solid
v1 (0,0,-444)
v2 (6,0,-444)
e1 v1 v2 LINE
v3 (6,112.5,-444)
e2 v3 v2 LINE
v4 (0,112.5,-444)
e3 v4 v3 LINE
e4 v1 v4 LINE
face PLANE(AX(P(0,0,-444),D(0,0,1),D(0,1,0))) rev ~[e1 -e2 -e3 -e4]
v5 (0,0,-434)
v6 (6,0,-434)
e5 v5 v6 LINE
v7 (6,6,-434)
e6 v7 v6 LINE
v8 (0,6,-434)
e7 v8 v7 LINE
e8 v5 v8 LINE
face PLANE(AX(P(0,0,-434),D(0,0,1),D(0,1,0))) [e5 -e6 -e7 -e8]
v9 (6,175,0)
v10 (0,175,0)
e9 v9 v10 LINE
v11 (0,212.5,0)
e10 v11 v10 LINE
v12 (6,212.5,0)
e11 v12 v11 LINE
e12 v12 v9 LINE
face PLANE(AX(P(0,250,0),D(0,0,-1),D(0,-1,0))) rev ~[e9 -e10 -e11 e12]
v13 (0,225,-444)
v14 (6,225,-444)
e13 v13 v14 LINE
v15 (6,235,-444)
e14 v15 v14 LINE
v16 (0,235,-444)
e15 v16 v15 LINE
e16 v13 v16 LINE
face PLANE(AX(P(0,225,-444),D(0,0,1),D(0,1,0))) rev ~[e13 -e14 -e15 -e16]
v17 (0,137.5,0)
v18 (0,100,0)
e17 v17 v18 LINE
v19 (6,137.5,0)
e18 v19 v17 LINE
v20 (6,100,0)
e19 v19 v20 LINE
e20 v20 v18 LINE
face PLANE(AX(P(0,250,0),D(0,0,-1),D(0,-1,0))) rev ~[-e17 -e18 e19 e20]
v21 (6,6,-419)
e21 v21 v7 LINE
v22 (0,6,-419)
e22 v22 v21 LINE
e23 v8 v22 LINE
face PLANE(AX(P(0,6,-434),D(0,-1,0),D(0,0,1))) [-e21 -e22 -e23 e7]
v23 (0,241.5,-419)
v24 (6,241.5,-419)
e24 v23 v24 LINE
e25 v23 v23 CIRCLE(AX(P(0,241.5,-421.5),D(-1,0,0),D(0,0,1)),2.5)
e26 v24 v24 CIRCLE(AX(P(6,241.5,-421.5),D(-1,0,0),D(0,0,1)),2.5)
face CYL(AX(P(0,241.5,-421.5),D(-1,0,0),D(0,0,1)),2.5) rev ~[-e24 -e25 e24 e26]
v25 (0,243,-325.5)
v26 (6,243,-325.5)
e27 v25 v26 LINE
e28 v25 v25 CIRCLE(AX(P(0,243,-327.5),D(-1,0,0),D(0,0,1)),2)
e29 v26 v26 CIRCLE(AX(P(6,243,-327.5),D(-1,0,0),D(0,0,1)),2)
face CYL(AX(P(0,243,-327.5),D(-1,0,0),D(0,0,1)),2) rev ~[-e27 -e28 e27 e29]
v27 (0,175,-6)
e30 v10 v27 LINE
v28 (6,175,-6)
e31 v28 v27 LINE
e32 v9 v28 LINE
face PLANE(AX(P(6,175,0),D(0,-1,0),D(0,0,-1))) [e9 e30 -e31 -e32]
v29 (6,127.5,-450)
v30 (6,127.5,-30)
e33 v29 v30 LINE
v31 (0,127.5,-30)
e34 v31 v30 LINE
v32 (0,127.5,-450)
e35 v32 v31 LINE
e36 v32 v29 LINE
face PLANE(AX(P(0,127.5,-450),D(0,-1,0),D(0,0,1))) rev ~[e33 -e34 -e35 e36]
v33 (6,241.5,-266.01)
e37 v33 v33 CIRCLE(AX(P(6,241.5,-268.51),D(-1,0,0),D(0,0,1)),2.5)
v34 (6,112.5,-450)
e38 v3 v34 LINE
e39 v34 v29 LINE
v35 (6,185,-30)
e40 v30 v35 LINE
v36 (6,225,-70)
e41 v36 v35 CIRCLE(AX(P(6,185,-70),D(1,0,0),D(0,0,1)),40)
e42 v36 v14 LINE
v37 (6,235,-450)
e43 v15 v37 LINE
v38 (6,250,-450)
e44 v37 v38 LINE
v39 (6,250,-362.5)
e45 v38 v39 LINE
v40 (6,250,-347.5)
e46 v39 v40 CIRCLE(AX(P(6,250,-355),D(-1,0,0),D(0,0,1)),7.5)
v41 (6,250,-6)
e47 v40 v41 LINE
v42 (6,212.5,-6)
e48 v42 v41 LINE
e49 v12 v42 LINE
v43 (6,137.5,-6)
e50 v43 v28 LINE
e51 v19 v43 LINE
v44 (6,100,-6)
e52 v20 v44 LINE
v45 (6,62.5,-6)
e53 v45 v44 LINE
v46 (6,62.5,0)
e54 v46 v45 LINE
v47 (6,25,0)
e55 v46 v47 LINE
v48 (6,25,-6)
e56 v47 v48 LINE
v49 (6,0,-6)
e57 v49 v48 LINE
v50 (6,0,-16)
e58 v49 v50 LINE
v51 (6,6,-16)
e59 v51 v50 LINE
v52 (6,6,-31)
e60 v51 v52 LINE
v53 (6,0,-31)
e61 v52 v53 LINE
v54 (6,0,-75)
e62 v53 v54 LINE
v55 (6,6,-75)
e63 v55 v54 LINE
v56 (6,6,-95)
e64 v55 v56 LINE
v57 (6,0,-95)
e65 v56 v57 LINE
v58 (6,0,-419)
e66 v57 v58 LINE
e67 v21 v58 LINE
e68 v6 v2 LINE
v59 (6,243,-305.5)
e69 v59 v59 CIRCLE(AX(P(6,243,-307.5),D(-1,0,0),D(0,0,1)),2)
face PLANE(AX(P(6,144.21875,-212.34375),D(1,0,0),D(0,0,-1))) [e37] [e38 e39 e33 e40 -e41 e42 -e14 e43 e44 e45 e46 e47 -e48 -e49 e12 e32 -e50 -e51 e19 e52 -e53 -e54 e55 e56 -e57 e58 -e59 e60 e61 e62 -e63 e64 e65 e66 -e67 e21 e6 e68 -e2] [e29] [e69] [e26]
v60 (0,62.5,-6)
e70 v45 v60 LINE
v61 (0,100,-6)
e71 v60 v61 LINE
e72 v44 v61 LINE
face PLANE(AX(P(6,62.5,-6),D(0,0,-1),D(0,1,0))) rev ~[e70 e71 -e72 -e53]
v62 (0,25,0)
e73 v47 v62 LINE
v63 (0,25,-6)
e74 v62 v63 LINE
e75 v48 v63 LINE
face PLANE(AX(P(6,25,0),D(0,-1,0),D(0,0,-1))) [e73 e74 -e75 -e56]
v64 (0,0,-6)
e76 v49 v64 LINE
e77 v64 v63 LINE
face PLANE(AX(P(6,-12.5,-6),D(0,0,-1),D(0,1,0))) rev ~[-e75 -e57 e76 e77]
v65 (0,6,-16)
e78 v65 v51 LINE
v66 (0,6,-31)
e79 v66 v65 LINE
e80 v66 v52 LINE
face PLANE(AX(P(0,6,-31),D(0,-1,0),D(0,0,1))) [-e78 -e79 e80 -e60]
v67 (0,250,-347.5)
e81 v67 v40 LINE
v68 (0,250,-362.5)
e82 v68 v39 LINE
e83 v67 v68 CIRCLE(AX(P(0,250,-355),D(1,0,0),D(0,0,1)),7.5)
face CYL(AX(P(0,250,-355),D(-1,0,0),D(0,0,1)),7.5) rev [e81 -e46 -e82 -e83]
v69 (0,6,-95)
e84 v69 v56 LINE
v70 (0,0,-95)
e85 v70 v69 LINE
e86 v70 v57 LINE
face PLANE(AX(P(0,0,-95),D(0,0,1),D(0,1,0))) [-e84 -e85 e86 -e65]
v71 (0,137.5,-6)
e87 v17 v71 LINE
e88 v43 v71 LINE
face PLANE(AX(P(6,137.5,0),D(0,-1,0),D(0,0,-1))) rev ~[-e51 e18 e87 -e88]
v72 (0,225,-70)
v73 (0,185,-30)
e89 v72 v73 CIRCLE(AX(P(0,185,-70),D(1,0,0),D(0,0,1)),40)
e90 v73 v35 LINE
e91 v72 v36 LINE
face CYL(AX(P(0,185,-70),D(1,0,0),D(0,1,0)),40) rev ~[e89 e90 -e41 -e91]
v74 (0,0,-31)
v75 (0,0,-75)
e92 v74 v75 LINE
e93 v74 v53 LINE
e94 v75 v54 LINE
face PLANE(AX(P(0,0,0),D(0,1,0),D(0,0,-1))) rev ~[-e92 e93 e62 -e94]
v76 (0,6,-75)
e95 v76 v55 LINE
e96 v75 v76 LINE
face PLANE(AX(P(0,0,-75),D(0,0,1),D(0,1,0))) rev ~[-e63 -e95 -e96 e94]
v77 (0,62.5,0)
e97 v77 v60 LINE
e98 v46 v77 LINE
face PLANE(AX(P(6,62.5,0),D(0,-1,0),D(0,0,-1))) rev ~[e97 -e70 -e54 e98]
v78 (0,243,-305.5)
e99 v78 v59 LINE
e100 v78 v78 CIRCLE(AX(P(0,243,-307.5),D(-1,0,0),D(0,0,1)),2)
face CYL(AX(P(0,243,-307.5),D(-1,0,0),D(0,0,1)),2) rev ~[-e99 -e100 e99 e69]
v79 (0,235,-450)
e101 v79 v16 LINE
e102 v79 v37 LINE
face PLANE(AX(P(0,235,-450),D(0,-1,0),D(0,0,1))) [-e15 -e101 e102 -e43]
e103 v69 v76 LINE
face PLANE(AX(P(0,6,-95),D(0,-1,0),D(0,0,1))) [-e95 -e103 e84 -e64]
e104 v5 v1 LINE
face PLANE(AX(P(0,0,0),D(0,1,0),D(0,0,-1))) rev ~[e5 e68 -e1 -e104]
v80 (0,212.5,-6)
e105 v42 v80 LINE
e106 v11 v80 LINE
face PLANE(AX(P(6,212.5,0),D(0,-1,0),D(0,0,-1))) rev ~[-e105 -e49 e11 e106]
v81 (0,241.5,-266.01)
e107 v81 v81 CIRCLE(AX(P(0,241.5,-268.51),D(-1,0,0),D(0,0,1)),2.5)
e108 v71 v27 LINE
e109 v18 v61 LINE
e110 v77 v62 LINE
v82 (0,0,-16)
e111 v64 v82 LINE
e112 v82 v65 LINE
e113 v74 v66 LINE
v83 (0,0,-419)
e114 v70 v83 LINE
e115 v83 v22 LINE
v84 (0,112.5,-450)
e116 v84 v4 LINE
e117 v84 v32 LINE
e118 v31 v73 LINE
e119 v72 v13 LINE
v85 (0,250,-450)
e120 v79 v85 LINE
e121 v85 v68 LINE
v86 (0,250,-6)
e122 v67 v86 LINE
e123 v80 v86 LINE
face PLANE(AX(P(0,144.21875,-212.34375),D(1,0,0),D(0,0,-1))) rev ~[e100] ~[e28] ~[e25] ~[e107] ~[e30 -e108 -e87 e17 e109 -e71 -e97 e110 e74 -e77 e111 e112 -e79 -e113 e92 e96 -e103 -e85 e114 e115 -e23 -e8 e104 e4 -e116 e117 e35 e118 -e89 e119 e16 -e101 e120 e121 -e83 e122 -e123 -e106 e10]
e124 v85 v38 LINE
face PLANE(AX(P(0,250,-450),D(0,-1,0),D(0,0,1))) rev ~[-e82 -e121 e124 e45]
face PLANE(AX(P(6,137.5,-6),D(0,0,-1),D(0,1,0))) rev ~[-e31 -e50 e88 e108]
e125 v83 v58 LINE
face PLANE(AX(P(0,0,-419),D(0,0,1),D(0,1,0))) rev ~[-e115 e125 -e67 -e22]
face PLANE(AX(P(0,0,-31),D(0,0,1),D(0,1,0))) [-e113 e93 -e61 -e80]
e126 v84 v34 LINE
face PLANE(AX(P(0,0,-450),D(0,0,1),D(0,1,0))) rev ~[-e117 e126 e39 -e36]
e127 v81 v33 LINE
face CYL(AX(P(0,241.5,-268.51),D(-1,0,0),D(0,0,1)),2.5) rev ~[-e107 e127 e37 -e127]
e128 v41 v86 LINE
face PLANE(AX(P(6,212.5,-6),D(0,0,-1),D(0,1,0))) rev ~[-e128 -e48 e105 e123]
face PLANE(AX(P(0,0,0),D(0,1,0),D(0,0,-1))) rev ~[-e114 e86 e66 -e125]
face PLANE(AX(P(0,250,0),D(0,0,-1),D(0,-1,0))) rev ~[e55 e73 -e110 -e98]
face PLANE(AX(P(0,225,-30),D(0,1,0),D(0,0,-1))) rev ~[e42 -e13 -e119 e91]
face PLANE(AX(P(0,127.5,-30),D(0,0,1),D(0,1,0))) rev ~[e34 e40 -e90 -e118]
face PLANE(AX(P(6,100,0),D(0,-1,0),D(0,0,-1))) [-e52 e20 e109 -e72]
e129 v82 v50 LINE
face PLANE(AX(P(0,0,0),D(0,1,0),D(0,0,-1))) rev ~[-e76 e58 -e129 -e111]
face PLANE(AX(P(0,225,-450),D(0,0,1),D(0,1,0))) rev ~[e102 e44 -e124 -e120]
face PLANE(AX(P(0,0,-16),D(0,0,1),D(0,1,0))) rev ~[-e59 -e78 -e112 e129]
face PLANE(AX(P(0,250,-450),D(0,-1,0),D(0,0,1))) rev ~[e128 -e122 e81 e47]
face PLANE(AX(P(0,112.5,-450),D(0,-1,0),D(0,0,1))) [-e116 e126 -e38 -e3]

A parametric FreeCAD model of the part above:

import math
import FreeCAD as App
import Part
import Sketcher


def edges_at(feature, points):
    """Names of the edges that pass closest to the given points."""
    edges = feature.Shape.Edges
    near = lambda p: min(range(len(edges)), key=lambda i: edges[i].distToShape(Part.Vertex(*p))[0])
    return sorted({f"Edge{near(p) + 1}" for p in points})


def add_polygon(sketch, points):
    """Adds a closed chain of lines whose ends are joined by coincident constraints."""
    first, n = sketch.GeometryCount, len(points)
    for a, b in zip(points, points[1:] + points[:1]):
        sketch.addGeometry(Part.LineSegment(App.Vector(*a, 0), App.Vector(*b, 0)), False)
    for i in range(n):
        sketch.addConstraint(Sketcher.Constraint("Coincident", first + i, 2, first + (i + 1) % n, 1))

doc = App.newDocument("Part")
body = doc.addObject("PartDesign::Body", "Body")

# Sketch on YZ plane
sketch1 = body.newObject("Sketcher::SketchObject", "Sketch")
sketch1.AttachmentSupport = (doc.getObject("YZ_Plane"), [""])
sketch1.MapMode = "FlatFace"
add_polygon(sketch1, [(225, -450), (250, -450), (250, 0), (0, 0), (0, -450), (127.5, -450), (127.5, -30), (225, -30)])  # lines 0-7
sketch1.addConstraint(Sketcher.Constraint("Horizontal", 0))
sketch1.addConstraint(Sketcher.Constraint("Vertical", 1))
sketch1.addConstraint(Sketcher.Constraint("Horizontal", 2))
sketch1.addConstraint(Sketcher.Constraint("Vertical", 3))
sketch1.addConstraint(Sketcher.Constraint("Horizontal", 4))
sketch1.addConstraint(Sketcher.Constraint("Vertical", 5))
sketch1.addConstraint(Sketcher.Constraint("Horizontal", 6))
sketch1.addConstraint(Sketcher.Constraint("Vertical", 7))
sketch1.addConstraint(Sketcher.Constraint("Coincident", 2, 2, -1, 1))
sketch1.addConstraint(Sketcher.Constraint("Horizontal", 0, 2, 3, 2))
sketch1.addConstraint(Sketcher.Constraint("DistanceX", 0, 1, 0, 2, 25.0))
sketch1.addConstraint(Sketcher.Constraint("DistanceX", 2, 2, 2, 1, 250.0))
sketch1.addConstraint(Sketcher.Constraint("DistanceY", 1, 1, 1, 2, 450.0))
sketch1.addConstraint(Sketcher.Constraint("DistanceY", 5, 1, 5, 2, 420.0))
sketch1.addConstraint(Sketcher.Constraint("DistanceX", 4, 1, 4, 2, 127.5))
pad1 = body.newObject("PartDesign::Pad", "Pad")
pad1.Profile = sketch1
pad1.Length = 6

# Sketch on YZ plane
sketch2 = body.newObject("Sketcher::SketchObject", "Sketch001")
sketch2.AttachmentSupport = (doc.getObject("YZ_Plane"), [""])
sketch2.MapMode = "FlatFace"
sketch2.AttachmentOffset = App.Placement(App.Vector(0, 0, 6), App.Rotation())
add_polygon(sketch2, [(250, 0), (212.5, 0), (212.5, -6), (250, -6)])  # lines 0-3
sketch2.addConstraint(Sketcher.Constraint("Horizontal", 0))
sketch2.addConstraint(Sketcher.Constraint("Vertical", 1))
sketch2.addConstraint(Sketcher.Constraint("Horizontal", 2))
sketch2.addConstraint(Sketcher.Constraint("Vertical", 3))
sketch2.addConstraint(Sketcher.Constraint("PointOnObject", 0, 2, -1))
sketch2.addConstraint(Sketcher.Constraint("DistanceY", 1, 2, 1, 1, 6.0))
sketch2.addConstraint(Sketcher.Constraint("DistanceX", 0, 2, 0, 1, 37.5))
sketch2.addConstraint(Sketcher.Constraint("DistanceX", -1, 1, 2, 2, 250.0))
pocket1 = body.newObject("PartDesign::Pocket", "Pocket")
pocket1.Profile = sketch2
pocket1.Length = 6
doc.recompute()

linearpattern = body.newObject("PartDesign::LinearPattern", "LinearPattern")
linearpattern.Originals = [pocket1]
linearpattern.Direction = (doc.getObject("Y_Axis"), [""])
linearpattern.Mode = "offset"
linearpattern.Offset = 75
linearpattern.Occurrences = 4
linearpattern.Reversed = True
body.Tip = linearpattern
doc.recompute()

fillet = body.newObject("PartDesign::Fillet", "Fillet")
fillet.Base = (linearpattern, edges_at(linearpattern, [(3, 225, -30)]))
fillet.Radius = 40

# Sketch on YZ plane
sketch3 = body.newObject("Sketcher::SketchObject", "Sketch002")
sketch3.AttachmentSupport = (doc.getObject("YZ_Plane"), [""])
sketch3.MapMode = "FlatFace"
add_polygon(sketch3, [(235, -450), (225, -450), (225, -444), (235, -444)])  # lines 0-3
add_polygon(sketch3, [(112.5, -450), (0, -450), (0, -444), (112.5, -444)])  # lines 4-7
sketch3.addConstraint(Sketcher.Constraint("Horizontal", 0))
sketch3.addConstraint(Sketcher.Constraint("Vertical", 1))
sketch3.addConstraint(Sketcher.Constraint("Horizontal", 2))
sketch3.addConstraint(Sketcher.Constraint("Vertical", 3))
sketch3.addConstraint(Sketcher.Constraint("Horizontal", 4))
sketch3.addConstraint(Sketcher.Constraint("Vertical", 5))
sketch3.addConstraint(Sketcher.Constraint("Horizontal", 6))
sketch3.addConstraint(Sketcher.Constraint("Vertical", 7))
sketch3.addConstraint(Sketcher.Constraint("PointOnObject", 4, 2, -2))
sketch3.addConstraint(Sketcher.Constraint("Horizontal", 3, 2, 4, 2))
sketch3.addConstraint(Sketcher.Constraint("Horizontal", 2, 2, 5, 2))
sketch3.addConstraint(Sketcher.Constraint("DistanceX", 0, 2, 0, 1, 10.0))
sketch3.addConstraint(Sketcher.Constraint("DistanceY", 1, 1, 1, 2, 6.0))
sketch3.addConstraint(Sketcher.Constraint("DistanceX", 4, 2, 4, 1, 112.5))
sketch3.addConstraint(Sketcher.Constraint("DistanceX", -1, 1, 0, 2, 225.0))
sketch3.addConstraint(Sketcher.Constraint("DistanceY", 0, 2, -1, 1, 450.0))
pocket2 = body.newObject("PartDesign::Pocket", "Pocket001")
pocket2.Profile = sketch3
pocket2.Type = "ThroughAll"
pocket2.Reversed = True

# Sketch on YZ plane
sketch4 = body.newObject("Sketcher::SketchObject", "Sketch003")
sketch4.AttachmentSupport = (doc.getObject("YZ_Plane"), [""])
sketch4.MapMode = "FlatFace"
add_polygon(sketch4, [(6, -31), (0, -31), (0, -16), (6, -16)])  # lines 0-3
add_polygon(sketch4, [(6, -434), (0, -434), (0, -419), (6, -419)])  # lines 4-7
sketch4.addConstraint(Sketcher.Constraint("Horizontal", 0))
sketch4.addConstraint(Sketcher.Constraint("Vertical", 1))
sketch4.addConstraint(Sketcher.Constraint("Horizontal", 2))
sketch4.addConstraint(Sketcher.Constraint("Vertical", 3))
sketch4.addConstraint(Sketcher.Constraint("Horizontal", 4))
sketch4.addConstraint(Sketcher.Constraint("Vertical", 5))
sketch4.addConstraint(Sketcher.Constraint("Horizontal", 6))
sketch4.addConstraint(Sketcher.Constraint("Vertical", 7))
sketch4.addConstraint(Sketcher.Constraint("PointOnObject", 0, 2, -2))
sketch4.addConstraint(Sketcher.Constraint("PointOnObject", 4, 2, -2))
sketch4.addConstraint(Sketcher.Constraint("Vertical", 3, 2, 6, 2))
sketch4.addConstraint(Sketcher.Constraint("Equal", 3, 5))
sketch4.addConstraint(Sketcher.Constraint("DistanceX", 0, 2, 0, 1, 6.0))
sketch4.addConstraint(Sketcher.Constraint("DistanceY", 1, 1, 1, 2, 15.0))
sketch4.addConstraint(Sketcher.Constraint("DistanceY", 0, 2, -1, 1, 31.0))
sketch4.addConstraint(Sketcher.Constraint("DistanceY", 4, 2, -1, 1, 434.0))
pocket3 = body.newObject("PartDesign::Pocket", "Pocket002")
pocket3.Profile = sketch4
pocket3.Type = "ThroughAll"
pocket3.Reversed = True

# Sketch on YZ plane
sketch5 = body.newObject("Sketcher::SketchObject", "Sketch004")
sketch5.AttachmentSupport = (doc.getObject("YZ_Plane"), [""])
sketch5.MapMode = "FlatFace"
sketch5.addGeometry(Part.Circle(App.Vector(243, -327.5, 0), App.Vector(0, 0, 1), 2), False)
sketch5.addGeometry(Part.Circle(App.Vector(243, -307.5, 0), App.Vector(0, 0, 1), 2), False)
sketch5.addGeometry(Part.LineSegment(App.Vector(250, -347.5, 0), App.Vector(250, -362.5, 0)), False)
sketch5.addGeometry(Part.ArcOfCircle(Part.Circle(App.Vector(250, -355, 0), App.Vector(0, 0, 1), 7.5), math.radians(90), math.radians(270)), False)
sketch5.addConstraint(Sketcher.Constraint("Coincident", 2, 1, 3, 1))
sketch5.addConstraint(Sketcher.Constraint("Coincident", 3, 2, 2, 2))
sketch5.addConstraint(Sketcher.Constraint("Vertical", 2))
sketch5.addConstraint(Sketcher.Constraint("Equal", 0, 1))
sketch5.addConstraint(Sketcher.Constraint("Vertical", 0, 3, 1, 3))
sketch5.addConstraint(Sketcher.Constraint("Vertical", 3, 3, 2, 1))
sketch5.addConstraint(Sketcher.Constraint("Diameter", 0, 4.0))
sketch5.addConstraint(Sketcher.Constraint("Radius", 3, 7.5))
sketch5.addConstraint(Sketcher.Constraint("DistanceX", -1, 1, 0, 3, 243.0))
sketch5.addConstraint(Sketcher.Constraint("DistanceX", -1, 1, 3, 3, 250.0))
sketch5.addConstraint(Sketcher.Constraint("DistanceY", 3, 3, -1, 1, 355.0))
sketch5.addConstraint(Sketcher.Constraint("DistanceY", 0, 3, 1, 3, 20.0))
sketch5.addConstraint(Sketcher.Constraint("DistanceY", 2, 1, 0, 3, 20.0))
pocket4 = body.newObject("PartDesign::Pocket", "Pocket003")
pocket4.Profile = sketch5
pocket4.Type = "ThroughAll"
pocket4.Reversed = True

# Sketch on YZ plane
sketch6 = body.newObject("Sketcher::SketchObject", "Sketch005")
sketch6.AttachmentSupport = (doc.getObject("YZ_Plane"), [""])
sketch6.MapMode = "FlatFace"
add_polygon(sketch6, [(6, -95), (0, -95), (0, -75), (6, -75)])  # lines 0-3
sketch6.addConstraint(Sketcher.Constraint("Horizontal", 0))
sketch6.addConstraint(Sketcher.Constraint("Vertical", 1))
sketch6.addConstraint(Sketcher.Constraint("Horizontal", 2))
sketch6.addConstraint(Sketcher.Constraint("Vertical", 3))
sketch6.addConstraint(Sketcher.Constraint("PointOnObject", 0, 2, -2))
sketch6.addConstraint(Sketcher.Constraint("DistanceX", 0, 2, 0, 1, 6.0))
sketch6.addConstraint(Sketcher.Constraint("DistanceY", 1, 1, 1, 2, 20.0))
sketch6.addConstraint(Sketcher.Constraint("DistanceY", 0, 2, -1, 1, 95.0))
pocket5 = body.newObject("PartDesign::Pocket", "Pocket004")
pocket5.Profile = sketch6
pocket5.Type = "ThroughAll"
pocket5.Reversed = True

# Sketch on YZ plane
sketch7 = body.newObject("Sketcher::SketchObject", "Sketch006")
sketch7.AttachmentSupport = (doc.getObject("YZ_Plane"), [""])
sketch7.MapMode = "FlatFace"
sketch7.addGeometry(Part.Circle(App.Vector(241.5, -421.5, 0), App.Vector(0, 0, 1), 2.5), False)
sketch7.addGeometry(Part.Circle(App.Vector(241.5, -268.51, 0), App.Vector(0, 0, 1), 2.5), False)
sketch7.addConstraint(Sketcher.Constraint("Equal", 0, 1))
sketch7.addConstraint(Sketcher.Constraint("Vertical", 0, 3, 1, 3))
sketch7.addConstraint(Sketcher.Constraint("Diameter", 0, 5.0))
sketch7.addConstraint(Sketcher.Constraint("DistanceX", -1, 1, 0, 3, 241.5))
sketch7.addConstraint(Sketcher.Constraint("DistanceY", 0, 3, -1, 1, 421.5))
sketch7.addConstraint(Sketcher.Constraint("DistanceY", 1, 3, -1, 1, 268.51))
pocket6 = body.newObject("PartDesign::Pocket", "Pocket005")
pocket6.Profile = sketch7
pocket6.Type = "ThroughAll"
pocket6.Reversed = True

doc.recompute()
